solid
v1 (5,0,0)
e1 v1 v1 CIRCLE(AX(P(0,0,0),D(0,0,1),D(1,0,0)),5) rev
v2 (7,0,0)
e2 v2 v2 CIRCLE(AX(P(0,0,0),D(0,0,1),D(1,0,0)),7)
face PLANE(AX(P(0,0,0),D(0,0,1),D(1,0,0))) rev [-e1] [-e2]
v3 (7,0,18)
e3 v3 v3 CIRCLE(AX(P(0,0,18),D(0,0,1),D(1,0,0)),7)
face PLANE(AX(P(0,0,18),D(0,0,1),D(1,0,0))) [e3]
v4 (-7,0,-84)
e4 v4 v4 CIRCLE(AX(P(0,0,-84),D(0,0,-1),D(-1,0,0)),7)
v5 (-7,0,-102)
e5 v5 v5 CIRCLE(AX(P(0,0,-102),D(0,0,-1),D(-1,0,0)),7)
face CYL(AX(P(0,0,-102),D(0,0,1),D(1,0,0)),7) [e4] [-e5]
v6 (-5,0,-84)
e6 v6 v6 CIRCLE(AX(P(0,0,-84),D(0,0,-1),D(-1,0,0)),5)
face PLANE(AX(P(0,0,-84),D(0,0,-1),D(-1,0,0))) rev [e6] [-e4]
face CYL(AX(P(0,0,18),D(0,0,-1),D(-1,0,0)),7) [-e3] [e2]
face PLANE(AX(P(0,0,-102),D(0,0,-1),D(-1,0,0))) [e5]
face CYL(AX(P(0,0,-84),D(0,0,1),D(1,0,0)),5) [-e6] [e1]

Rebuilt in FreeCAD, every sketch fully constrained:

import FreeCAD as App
import Part
import Sketcher
Q = App.Units.Quantity

doc = App.newDocument("Part")
body = doc.addObject("PartDesign::Body", "Body")

# Sketch on XY plane
sketch1 = body.newObject("Sketcher::SketchObject", "Sketch")
sketch1.AttachmentSupport = (doc.getObject("XY_Plane"), [""])
sketch1.MapMode = "FlatFace"
sketch1.addGeometry(Part.Circle(App.Vector(0, 0, 0), App.Vector(0, 0, 1), 7), False)
sketch1.addConstraint([
    Sketcher.Constraint("Coincident", 0, 3, -1, 1),
    Sketcher.Constraint("Diameter", 0, Q("14 mm")),
])
pad1 = body.newObject("PartDesign::Pad", "Pad")
pad1.Profile = sketch1
pad1.Length = 18

# Sketch on XY plane
sketch2 = body.newObject("Sketcher::SketchObject", "Sketch001")
sketch2.AttachmentSupport = (doc.getObject("XY_Plane"), [""])
sketch2.MapMode = "FlatFace"
sketch2.addGeometry(Part.Circle(App.Vector(0, 0, 0), App.Vector(0, 0, 1), 5), False)
sketch2.addConstraint([
    Sketcher.Constraint("Coincident", 0, 3, -1, 1),
    Sketcher.Constraint("Diameter", 0, Q("10 mm")),
])
pad2 = body.newObject("PartDesign::Pad", "Pad001")
pad2.Profile = sketch2
pad2.Length = 84
pad2.Reversed = True

# Sketch on XY plane
sketch3 = body.newObject("Sketcher::SketchObject", "Sketch002")
sketch3.AttachmentSupport = (doc.getObject("XY_Plane"), [""])
sketch3.MapMode = "FlatFace"
sketch3.AttachmentOffset = App.Placement(App.Vector(0, 0, -84), App.Rotation())
sketch3.addGeometry(Part.Circle(App.Vector(0, 0, 0), App.Vector(0, 0, 1), 7), False)
sketch3.addConstraint([
    Sketcher.Constraint("Coincident", 0, 3, -1, 1),
    Sketcher.Constraint("Diameter", 0, Q("14 mm")),
])
pad3 = body.newObject("PartDesign::Pad", "Pad002")
pad3.Profile = sketch3
pad3.Length = 18
pad3.Reversed = True

doc.recompute()
